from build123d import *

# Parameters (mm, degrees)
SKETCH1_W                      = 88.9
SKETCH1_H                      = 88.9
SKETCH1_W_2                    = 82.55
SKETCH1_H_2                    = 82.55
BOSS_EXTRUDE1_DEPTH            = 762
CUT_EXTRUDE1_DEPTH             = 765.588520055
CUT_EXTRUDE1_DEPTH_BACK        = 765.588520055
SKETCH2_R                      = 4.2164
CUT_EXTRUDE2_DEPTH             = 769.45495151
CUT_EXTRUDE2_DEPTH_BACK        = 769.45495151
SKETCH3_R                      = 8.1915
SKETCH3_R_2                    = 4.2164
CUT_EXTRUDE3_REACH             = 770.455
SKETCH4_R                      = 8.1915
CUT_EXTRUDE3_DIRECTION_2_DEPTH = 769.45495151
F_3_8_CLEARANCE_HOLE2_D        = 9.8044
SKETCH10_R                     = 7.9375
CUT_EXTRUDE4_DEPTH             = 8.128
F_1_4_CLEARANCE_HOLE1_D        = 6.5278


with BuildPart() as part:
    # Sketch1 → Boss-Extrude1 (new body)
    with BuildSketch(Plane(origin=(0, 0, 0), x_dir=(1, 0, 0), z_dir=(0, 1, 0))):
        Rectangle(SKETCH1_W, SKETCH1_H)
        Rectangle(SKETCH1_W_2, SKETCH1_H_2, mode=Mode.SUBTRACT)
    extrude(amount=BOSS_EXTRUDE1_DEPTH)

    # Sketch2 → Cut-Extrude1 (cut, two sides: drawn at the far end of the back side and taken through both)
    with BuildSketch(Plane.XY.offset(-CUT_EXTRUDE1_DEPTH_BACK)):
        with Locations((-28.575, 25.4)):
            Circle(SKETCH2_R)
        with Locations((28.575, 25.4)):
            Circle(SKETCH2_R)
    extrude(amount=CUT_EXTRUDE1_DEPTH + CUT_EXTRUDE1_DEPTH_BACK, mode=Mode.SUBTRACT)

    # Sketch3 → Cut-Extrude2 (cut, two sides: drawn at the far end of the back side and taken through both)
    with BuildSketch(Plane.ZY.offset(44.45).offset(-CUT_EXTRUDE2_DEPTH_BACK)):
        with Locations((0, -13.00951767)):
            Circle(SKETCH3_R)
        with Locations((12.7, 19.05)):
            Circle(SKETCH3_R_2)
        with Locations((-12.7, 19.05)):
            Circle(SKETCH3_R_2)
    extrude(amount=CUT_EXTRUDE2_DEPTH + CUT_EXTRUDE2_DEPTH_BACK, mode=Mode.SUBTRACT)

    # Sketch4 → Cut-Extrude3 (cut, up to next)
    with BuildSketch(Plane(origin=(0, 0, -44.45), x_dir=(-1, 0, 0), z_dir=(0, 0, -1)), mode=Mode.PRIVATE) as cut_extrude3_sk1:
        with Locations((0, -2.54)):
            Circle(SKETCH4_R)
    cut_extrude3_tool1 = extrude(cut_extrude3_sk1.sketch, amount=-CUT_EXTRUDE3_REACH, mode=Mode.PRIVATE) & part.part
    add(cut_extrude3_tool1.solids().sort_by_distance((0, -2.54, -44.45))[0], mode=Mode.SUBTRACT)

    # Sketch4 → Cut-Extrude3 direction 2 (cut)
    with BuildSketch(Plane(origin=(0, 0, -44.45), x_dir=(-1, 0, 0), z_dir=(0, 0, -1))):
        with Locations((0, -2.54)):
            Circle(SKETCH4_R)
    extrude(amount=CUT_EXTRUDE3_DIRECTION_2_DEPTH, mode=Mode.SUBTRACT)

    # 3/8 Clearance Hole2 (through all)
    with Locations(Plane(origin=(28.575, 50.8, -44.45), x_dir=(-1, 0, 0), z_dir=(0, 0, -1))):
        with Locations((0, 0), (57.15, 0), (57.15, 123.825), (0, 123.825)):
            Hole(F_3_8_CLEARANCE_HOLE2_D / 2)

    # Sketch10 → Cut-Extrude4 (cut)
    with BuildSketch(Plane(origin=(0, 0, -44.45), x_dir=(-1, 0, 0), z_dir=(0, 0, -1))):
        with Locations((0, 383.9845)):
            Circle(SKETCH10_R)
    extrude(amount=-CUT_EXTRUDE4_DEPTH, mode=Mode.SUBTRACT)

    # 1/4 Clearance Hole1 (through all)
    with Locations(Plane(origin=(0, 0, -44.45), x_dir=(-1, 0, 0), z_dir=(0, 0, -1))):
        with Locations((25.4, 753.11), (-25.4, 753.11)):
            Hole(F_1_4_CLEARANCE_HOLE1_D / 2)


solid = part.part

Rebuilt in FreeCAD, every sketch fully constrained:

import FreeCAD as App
import Part
import Sketcher
from FreeCAD import Vector
Q = App.Units.Quantity

doc = App.newDocument("Part")
body = doc.addObject("PartDesign::Body", "Body")

# Sketch on XZ plane
sketch1 = body.newObject("Sketcher::SketchObject", "Sketch")
sketch1.AttachmentSupport = (doc.getObject("XZ_Plane"), [""])
sketch1.MapMode = "FlatFace"
sketch1.addGeometry([
    Part.LineSegment(Vector(-44, -44, 0), Vector(-44, 44, 0)),  # 0
    Part.LineSegment(Vector(-44, 44, 0), Vector(44, 44, 0)),  # 1
    Part.LineSegment(Vector(44, 44, 0), Vector(44, -44, 0)),  # 2
    Part.LineSegment(Vector(44, -44, 0), Vector(-44, -44, 0)),  # 3
    Part.LineSegment(Vector(41, 41, 0), Vector(-41, 41, 0)),  # 4
    Part.LineSegment(Vector(-41, 41, 0), Vector(-41, -41, 0)),  # 5
    Part.LineSegment(Vector(-41, -41, 0), Vector(41, -41, 0)),  # 6
    Part.LineSegment(Vector(41, -41, 0), Vector(41, 41, 0)),  # 7
], False)
sketch1.addConstraint([
    Sketcher.Constraint("Coincident", 0, 2, 1, 1),
    Sketcher.Constraint("Coincident", 1, 2, 2, 1),
    Sketcher.Constraint("Coincident", 2, 2, 3, 1),
    Sketcher.Constraint("Coincident", 3, 2, 0, 1),
    Sketcher.Constraint("Coincident", 4, 2, 5, 1),
    Sketcher.Constraint("Coincident", 5, 2, 6, 1),
    Sketcher.Constraint("Coincident", 6, 2, 7, 1),
    Sketcher.Constraint("Coincident", 7, 2, 4, 1),
    Sketcher.Constraint("Vertical", 0),
    Sketcher.Constraint("Horizontal", 1),
    Sketcher.Constraint("Vertical", 2),
    Sketcher.Constraint("Horizontal", 3),
    Sketcher.Constraint("Horizontal", 4),
    Sketcher.Constraint("Vertical", 5),
    Sketcher.Constraint("Horizontal", 6),
    Sketcher.Constraint("Vertical", 7),
    Sketcher.Constraint("Symmetric", 0, 2, 2, 2, -1, 1),
    Sketcher.Constraint("Symmetric", 4, 2, 6, 2, -1, 1),
    Sketcher.Constraint("Equal", 3, 0),
    Sketcher.Constraint("Equal", 6, 5),
    Sketcher.Constraint("DistanceX", 1, 1, 1, 2, Q("3.5 in")),
    Sketcher.Constraint("DistanceX", 4, 2, 4, 1, Q("3.25 in")),
])
pad1 = body.newObject("PartDesign::Pad", "Pad")
pad1.Profile = sketch1
pad1.Length = Q("30 in")
pad1.Reversed = True

# Sketch on XY plane
sketch2 = body.newObject("Sketcher::SketchObject", "Sketch001")
sketch2.AttachmentSupport = (doc.getObject("XY_Plane"), [""])
sketch2.MapMode = "FlatFace"
sketch2.addGeometry([
    Part.Circle(Vector(-28.6, 25.4, 0), Vector(0, 0, 1), 4.2),
    Part.Circle(Vector(28.6, 25.4, 0), Vector(0, 0, 1), 4.2),
], False)
sketch2.addConstraint([
    Sketcher.Constraint("Equal", 0, 1),
    Sketcher.Constraint("Symmetric", 0, 3, 1, 3, -2),
    Sketcher.Constraint("Diameter", 0, Q("0.332 in")),
    Sketcher.Constraint("DistanceY", -1, 1, 0, 3, Q("1 in")),
    Sketcher.Constraint("DistanceX", 0, 3, 1, 3, Q("2.25 in")),
])
pocket1 = body.newObject("PartDesign::Pocket", "Pocket")
pocket1.Profile = sketch2
pocket1.Type = "ThroughAll"
pocket1.Midplane = True

# Sketch on YZ plane
sketch3 = body.newObject("Sketcher::SketchObject", "Sketch002")
sketch3.AttachmentSupport = (doc.getObject("YZ_Plane"), [""])
sketch3.MapMode = "FlatFace"
sketch3.AttachmentOffset = App.Placement(Vector(0, 0, -1.75 * 25.4), App.Rotation())
sketch3.addGeometry([
    Part.Circle(Vector(-13, 0, 0), Vector(0, 0, 1), 8.2),
    Part.Circle(Vector(19.1, 12.7, 0), Vector(0, 0, 1), 4.2),
    Part.Circle(Vector(19.1, -12.7, 0), Vector(0, 0, 1), 4.2),
], False)
sketch3.addConstraint([
    Sketcher.Constraint("Equal", 1, 2),
    Sketcher.Constraint("Symmetric", 1, 3, 2, 3, -1),
    Sketcher.Constraint("PointOnObject", 0, 3, -1),
    Sketcher.Constraint("Diameter", 0, Q("0.645 in")),
    Sketcher.Constraint("Diameter", 1, Q("0.332 in")),
    Sketcher.Constraint("DistanceY", 2, 3, 1, 3, Q("1 in")),
    Sketcher.Constraint("DistanceX", -1, 1, 1, 3, Q("0.75 in")),
    Sketcher.Constraint("DistanceX", 0, 3, -1, 1, Q("13.009518 mm")),
])
pocket2 = body.newObject("PartDesign::Pocket", "Pocket001")
pocket2.Profile = sketch3
pocket2.Type = "ThroughAll"
pocket2.Midplane = True

# Sketch on XY plane
sketch4 = body.newObject("Sketcher::SketchObject", "Sketch003")
sketch4.AttachmentSupport = (doc.getObject("XY_Plane"), [""])
sketch4.MapMode = "FlatFace"
sketch4.AttachmentOffset = App.Placement(Vector(0, 0, -1.75 * 25.4), App.Rotation())
sketch4.addGeometry(Part.Circle(Vector(0, -3, 0), Vector(0, 0, 1), 8), False)
sketch4.addConstraint([
    Sketcher.Constraint("PointOnObject", 0, 3, -2),
    Sketcher.Constraint("Diameter", 0, Q("0.645 in")),
    Sketcher.Constraint("DistanceY", 0, 3, -1, 1, Q("0.1 in")),
])
pocket3 = body.newObject("PartDesign::Pocket", "Pocket002")
pocket3.Profile = sketch4
pocket3.Length = Q("0.125 in")
pocket3.Reversed = True

# Sketch on XY plane
sketch5 = body.newObject("Sketcher::SketchObject", "Sketch004")
sketch5.AttachmentSupport = (doc.getObject("XY_Plane"), [""])
sketch5.MapMode = "FlatFace"
sketch5.AttachmentOffset = App.Placement(Vector(0, 0, -1.75 * 25.4), App.Rotation())
sketch5.addGeometry(Part.Circle(Vector(0, -3, 0), Vector(0, 0, 1), 8), False)
sketch5.addConstraint([
    Sketcher.Constraint("PointOnObject", 0, 3, -2),
    Sketcher.Constraint("Diameter", 0, Q("0.645 in")),
    Sketcher.Constraint("DistanceY", 0, 3, -1, 1, Q("0.1 in")),
])
pocket4 = body.newObject("PartDesign::Pocket", "Pocket003")
pocket4.Profile = sketch5
pocket4.Length = 769.454952

# Sketch on XY plane
sketch6 = body.newObject("Sketcher::SketchObject", "Sketch005")
sketch6.AttachmentSupport = (doc.getObject("XY_Plane"), [""])
sketch6.MapMode = "FlatFace"
sketch6.AttachmentOffset = App.Placement(Vector(0, 0, -1.75 * 25.4), App.Rotation())
sketch6.addGeometry([
    Part.Circle(Vector(28.6, 50.8, 0), Vector(0, 0, 1), 4.9),
    Part.Circle(Vector(-28.6, 50.8, 0), Vector(0, 0, 1), 4.9),
    Part.Circle(Vector(-28.6, 174.6, 0), Vector(0, 0, 1), 4.9),
    Part.Circle(Vector(28.6, 174.6, 0), Vector(0, 0, 1), 4.9),
], False)
sketch6.addConstraint([
    Sketcher.Constraint("Equal", 0, 1),
    Sketcher.Constraint("Equal", 1, 2),
    Sketcher.Constraint("Equal", 2, 3),
    Sketcher.Constraint("Symmetric", 0, 3, 1, 3, -2),
    Sketcher.Constraint("Symmetric", 2, 3, 3, 3, -2),
    Sketcher.Constraint("Vertical", 1, 3, 2, 3),
    Sketcher.Constraint("Diameter", 0, Q("0.386 in")),
    Sketcher.Constraint("DistanceY", -1, 1, 0, 3, Q("2 in")),
    Sketcher.Constraint("DistanceX", 1, 3, 0, 3, Q("2.25 in")),
    Sketcher.Constraint("DistanceY", -1, 1, 2, 3, Q("6.875 in")),
])
doc.recompute()
hole = body.newObject("PartDesign::Hole", "Hole")
hole.Profile = sketch6
hole.ThreadType = "None"
hole.Diameter = Q("0.386 in")
hole.DepthType = "ThroughAll"
hole.Reversed = True

# Sketch on XY plane
sketch7 = body.newObject("Sketcher::SketchObject", "Sketch006")
sketch7.AttachmentSupport = (doc.getObject("XY_Plane"), [""])
sketch7.MapMode = "FlatFace"
sketch7.AttachmentOffset = App.Placement(Vector(0, 0, -1.75 * 25.4), App.Rotation())
sketch7.addGeometry(Part.Circle(Vector(0, 384, 0), Vector(0, 0, 1), 8), False)
sketch7.addConstraint([
    Sketcher.Constraint("PointOnObject", 0, 3, -2),
    Sketcher.Constraint("Diameter", 0, Q("0.625 in")),
    Sketcher.Constraint("DistanceY", -1, 1, 0, 3, Q("15.1175 in")),
])
pocket5 = body.newObject("PartDesign::Pocket", "Pocket004")
pocket5.Profile = sketch7
pocket5.Length = Q("0.32 in")
pocket5.Reversed = True

# Sketch on XY plane
sketch8 = body.newObject("Sketcher::SketchObject", "Sketch007")
sketch8.AttachmentSupport = (doc.getObject("XY_Plane"), [""])
sketch8.MapMode = "FlatFace"
sketch8.AttachmentOffset = App.Placement(Vector(0, 0, -1.75 * 25.4), App.Rotation())
sketch8.addGeometry([
    Part.Circle(Vector(-25.4, 753.1, 0), Vector(0, 0, 1), 3.3),
    Part.Circle(Vector(25.4, 753.1, 0), Vector(0, 0, 1), 3.3),
], False)
sketch8.addConstraint([
    Sketcher.Constraint("Equal", 0, 1),
    Sketcher.Constraint("Symmetric", 0, 3, 1, 3, -2),
    Sketcher.Constraint("Diameter", 0, Q("0.257 in")),
    Sketcher.Constraint("DistanceX", 0, 3, -1, 1, Q("1 in")),
    Sketcher.Constraint("DistanceY", -1, 1, 0, 3, Q("29.65 in")),
])
doc.recompute()
hole2 = body.newObject("PartDesign::Hole", "Hole001")
hole2.Profile = sketch8
hole2.ThreadType = "None"
hole2.Diameter = Q("0.257 in")
hole2.DepthType = "ThroughAll"
hole2.Reversed = True

doc.recompute()
